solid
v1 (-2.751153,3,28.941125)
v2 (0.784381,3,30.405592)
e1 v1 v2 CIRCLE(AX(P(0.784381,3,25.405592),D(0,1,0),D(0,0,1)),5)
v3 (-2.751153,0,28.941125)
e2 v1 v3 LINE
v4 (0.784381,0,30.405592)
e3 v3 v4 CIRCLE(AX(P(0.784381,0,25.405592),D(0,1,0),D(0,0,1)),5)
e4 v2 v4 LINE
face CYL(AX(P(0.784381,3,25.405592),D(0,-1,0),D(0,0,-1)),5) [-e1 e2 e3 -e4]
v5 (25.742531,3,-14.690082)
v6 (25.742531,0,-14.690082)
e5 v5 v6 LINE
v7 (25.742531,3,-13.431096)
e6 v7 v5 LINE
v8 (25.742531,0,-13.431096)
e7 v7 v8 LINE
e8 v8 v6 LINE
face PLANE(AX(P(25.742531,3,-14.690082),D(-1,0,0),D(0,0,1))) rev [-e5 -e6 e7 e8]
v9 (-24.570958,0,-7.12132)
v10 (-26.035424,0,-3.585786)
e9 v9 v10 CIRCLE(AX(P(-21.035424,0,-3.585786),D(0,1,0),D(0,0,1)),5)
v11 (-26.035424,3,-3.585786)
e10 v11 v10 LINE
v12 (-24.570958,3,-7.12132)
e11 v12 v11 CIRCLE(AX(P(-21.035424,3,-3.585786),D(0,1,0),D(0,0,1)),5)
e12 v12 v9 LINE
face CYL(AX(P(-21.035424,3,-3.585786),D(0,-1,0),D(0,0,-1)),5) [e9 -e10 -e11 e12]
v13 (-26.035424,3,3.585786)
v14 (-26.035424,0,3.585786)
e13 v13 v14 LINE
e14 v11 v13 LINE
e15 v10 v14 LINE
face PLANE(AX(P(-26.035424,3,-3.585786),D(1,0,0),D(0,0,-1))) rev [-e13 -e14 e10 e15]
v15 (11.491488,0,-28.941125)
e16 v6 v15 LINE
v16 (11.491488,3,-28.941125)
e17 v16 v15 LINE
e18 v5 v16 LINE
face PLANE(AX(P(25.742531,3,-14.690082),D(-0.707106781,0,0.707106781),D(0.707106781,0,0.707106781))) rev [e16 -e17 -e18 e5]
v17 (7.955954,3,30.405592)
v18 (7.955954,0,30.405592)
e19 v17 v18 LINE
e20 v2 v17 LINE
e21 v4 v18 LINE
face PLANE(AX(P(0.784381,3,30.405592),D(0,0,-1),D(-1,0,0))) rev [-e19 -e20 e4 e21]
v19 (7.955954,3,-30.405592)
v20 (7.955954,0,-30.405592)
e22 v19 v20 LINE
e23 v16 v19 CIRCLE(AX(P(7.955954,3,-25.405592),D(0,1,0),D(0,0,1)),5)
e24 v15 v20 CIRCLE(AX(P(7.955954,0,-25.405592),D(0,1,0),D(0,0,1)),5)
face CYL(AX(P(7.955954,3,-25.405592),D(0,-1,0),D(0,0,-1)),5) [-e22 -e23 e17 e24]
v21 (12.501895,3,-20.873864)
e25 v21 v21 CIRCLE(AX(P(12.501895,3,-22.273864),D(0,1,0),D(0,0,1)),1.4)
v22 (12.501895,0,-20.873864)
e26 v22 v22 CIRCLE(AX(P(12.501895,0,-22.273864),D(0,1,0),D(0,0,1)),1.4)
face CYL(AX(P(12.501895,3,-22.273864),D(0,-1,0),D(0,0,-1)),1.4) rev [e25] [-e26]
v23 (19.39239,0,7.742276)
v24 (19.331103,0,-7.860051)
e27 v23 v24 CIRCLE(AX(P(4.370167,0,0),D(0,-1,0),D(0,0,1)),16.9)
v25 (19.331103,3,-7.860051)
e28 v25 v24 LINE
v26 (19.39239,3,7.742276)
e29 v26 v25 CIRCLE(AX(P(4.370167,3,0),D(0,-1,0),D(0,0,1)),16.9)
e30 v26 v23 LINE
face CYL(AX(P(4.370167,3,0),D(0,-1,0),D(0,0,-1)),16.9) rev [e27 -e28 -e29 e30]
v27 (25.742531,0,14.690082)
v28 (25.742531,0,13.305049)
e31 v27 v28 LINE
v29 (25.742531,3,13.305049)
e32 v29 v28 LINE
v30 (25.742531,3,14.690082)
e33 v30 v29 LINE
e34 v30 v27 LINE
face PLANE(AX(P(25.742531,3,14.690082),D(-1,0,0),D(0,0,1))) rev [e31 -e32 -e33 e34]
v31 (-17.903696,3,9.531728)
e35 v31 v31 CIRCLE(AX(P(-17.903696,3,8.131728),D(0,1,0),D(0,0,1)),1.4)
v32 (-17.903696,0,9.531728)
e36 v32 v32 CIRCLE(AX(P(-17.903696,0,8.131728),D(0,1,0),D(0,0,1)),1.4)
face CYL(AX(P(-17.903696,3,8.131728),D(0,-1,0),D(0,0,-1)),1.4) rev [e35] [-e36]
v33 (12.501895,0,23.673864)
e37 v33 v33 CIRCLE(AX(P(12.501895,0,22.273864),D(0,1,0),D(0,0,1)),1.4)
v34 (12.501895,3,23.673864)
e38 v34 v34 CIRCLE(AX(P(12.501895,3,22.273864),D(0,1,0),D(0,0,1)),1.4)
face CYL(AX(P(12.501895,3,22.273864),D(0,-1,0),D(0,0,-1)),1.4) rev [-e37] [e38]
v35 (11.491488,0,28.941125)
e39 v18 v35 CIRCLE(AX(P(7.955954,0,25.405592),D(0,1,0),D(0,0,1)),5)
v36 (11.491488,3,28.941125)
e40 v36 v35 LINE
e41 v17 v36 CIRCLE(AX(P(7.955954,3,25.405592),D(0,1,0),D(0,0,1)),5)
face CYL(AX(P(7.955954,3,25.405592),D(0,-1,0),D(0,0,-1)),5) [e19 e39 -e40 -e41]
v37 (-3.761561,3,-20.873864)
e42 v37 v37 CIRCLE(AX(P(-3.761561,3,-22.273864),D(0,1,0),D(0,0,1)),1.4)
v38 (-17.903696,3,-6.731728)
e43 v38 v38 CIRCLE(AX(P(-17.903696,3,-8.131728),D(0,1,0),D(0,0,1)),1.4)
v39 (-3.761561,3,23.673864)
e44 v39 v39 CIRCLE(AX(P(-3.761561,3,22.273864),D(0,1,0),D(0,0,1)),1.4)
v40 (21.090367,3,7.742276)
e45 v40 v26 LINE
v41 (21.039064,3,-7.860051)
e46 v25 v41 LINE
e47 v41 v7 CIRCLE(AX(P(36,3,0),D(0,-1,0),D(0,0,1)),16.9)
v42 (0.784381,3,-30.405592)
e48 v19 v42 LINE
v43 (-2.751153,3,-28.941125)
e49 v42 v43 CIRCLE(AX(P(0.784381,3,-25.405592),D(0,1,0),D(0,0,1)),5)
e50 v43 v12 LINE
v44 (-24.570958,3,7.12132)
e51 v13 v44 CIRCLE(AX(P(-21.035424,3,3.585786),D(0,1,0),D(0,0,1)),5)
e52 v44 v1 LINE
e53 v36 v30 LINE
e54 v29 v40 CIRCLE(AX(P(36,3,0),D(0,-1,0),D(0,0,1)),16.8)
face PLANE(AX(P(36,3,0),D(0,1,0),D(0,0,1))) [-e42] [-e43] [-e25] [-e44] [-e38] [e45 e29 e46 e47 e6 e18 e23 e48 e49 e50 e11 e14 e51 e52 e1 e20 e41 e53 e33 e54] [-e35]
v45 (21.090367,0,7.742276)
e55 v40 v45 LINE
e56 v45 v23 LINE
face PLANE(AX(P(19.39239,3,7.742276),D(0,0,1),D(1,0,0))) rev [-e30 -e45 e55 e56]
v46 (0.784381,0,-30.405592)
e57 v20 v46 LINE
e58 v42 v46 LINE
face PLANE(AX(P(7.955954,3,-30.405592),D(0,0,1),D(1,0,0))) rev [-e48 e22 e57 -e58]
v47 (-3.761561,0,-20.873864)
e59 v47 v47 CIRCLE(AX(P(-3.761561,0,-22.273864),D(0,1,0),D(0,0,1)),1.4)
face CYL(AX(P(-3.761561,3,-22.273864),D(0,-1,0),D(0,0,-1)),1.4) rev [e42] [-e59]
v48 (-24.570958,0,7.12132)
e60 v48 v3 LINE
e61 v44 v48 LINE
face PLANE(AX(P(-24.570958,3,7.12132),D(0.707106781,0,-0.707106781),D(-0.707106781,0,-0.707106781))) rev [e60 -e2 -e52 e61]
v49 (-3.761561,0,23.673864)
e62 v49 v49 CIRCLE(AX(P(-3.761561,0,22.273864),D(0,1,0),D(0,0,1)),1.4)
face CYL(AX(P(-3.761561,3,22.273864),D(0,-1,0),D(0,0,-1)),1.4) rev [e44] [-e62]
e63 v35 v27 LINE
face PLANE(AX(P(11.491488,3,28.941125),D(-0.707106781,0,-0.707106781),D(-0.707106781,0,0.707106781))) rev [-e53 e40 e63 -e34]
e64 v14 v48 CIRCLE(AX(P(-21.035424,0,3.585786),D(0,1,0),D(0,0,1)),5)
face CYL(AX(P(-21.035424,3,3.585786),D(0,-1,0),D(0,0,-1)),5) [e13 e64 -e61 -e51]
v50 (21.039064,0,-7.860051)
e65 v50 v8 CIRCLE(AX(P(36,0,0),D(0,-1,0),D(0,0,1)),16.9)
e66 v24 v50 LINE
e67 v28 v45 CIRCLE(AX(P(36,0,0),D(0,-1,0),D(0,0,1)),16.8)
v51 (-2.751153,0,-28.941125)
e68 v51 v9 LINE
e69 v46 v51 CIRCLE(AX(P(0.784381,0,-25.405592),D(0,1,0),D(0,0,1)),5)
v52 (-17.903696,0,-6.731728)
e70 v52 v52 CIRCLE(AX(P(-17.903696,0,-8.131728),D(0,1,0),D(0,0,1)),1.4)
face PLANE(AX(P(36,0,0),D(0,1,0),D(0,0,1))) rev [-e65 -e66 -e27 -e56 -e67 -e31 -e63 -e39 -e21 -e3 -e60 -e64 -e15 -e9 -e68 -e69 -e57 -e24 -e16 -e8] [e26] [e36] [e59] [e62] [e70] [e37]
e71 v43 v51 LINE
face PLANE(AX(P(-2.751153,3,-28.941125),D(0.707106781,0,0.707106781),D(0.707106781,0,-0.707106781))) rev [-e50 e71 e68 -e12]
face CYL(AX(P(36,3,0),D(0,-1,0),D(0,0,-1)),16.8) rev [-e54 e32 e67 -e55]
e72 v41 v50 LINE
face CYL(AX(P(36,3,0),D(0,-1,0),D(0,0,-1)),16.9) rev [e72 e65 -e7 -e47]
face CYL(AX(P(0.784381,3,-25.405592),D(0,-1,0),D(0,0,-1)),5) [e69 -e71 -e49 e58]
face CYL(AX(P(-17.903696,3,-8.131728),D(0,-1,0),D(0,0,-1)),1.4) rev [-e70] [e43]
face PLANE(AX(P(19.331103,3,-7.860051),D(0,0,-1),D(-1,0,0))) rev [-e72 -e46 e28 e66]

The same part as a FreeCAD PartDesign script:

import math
import FreeCAD as App
import Part
import Sketcher
Q = App.Units.Quantity

doc = App.newDocument("Part")
params = doc.addObject("Spreadsheet::Sheet", "Params")
for row, (alias, value) in enumerate([
    ("sketch1_radius", "5 mm"),
    ("sketch1_diameter", "2.8 mm"),
    ("sketch1_radius2", "16.8 mm"),
    ("sketch1_radius3", "16.9 mm"),
    ("pad1_length", "3 mm"),
], start=1):
    params.set(f"A{row}", alias)
    params.set(f"B{row}", "=" + value)
    params.setAlias(f"B{row}", alias)

body = doc.addObject("PartDesign::Body", "Body")

# Sketch on XZ plane
sketch1 = body.newObject("Sketcher::SketchObject", "Sketch")
sketch1.AttachmentSupport = (doc.getObject("XZ_Plane"), [""])
sketch1.MapMode = "FlatFace"
sketch1.addGeometry(Part.LineSegment(App.Vector(25.742531, -14.690082, 0), App.Vector(11.491488, -28.941125, 0)), False)
sketch1.addGeometry(Part.ArcOfCircle(Part.Circle(App.Vector(7.955954, -25.405592, 0), App.Vector(0, 0, 1), 5), math.radians(-90), math.radians(-45)), False)
sketch1.addGeometry(Part.LineSegment(App.Vector(7.955954, -30.405592, 0), App.Vector(0.784381, -30.405592, 0)), False)
sketch1.addGeometry(Part.ArcOfCircle(Part.Circle(App.Vector(0.784381, -25.405592, 0), App.Vector(0, 0, 1), 5), math.radians(-135), math.radians(-90)), False)
sketch1.addGeometry(Part.LineSegment(App.Vector(-2.751153, -28.941125, 0), App.Vector(-24.570958, -7.12132, 0)), False)
sketch1.addGeometry(Part.ArcOfCircle(Part.Circle(App.Vector(-21.035424, -3.585786, 0), App.Vector(0, 0, 1), 5), math.radians(180), math.radians(225)), False)
sketch1.addGeometry(Part.LineSegment(App.Vector(-26.035424, -3.585786, 0), App.Vector(-26.035424, 3.585786, 0)), False)
sketch1.addGeometry(Part.ArcOfCircle(Part.Circle(App.Vector(-21.035424, 3.585786, 0), App.Vector(0, 0, 1), 5), math.radians(135), math.radians(180)), False)
sketch1.addGeometry(Part.LineSegment(App.Vector(-24.570958, 7.12132, 0), App.Vector(-2.751153, 28.941125, 0)), False)
sketch1.addGeometry(Part.ArcOfCircle(Part.Circle(App.Vector(0.784381, 25.405592, 0), App.Vector(0, 0, 1), 5), math.radians(90), math.radians(135)), False)
sketch1.addGeometry(Part.LineSegment(App.Vector(0.784381, 30.405592, 0), App.Vector(7.955954, 30.405592, 0)), False)
sketch1.addGeometry(Part.ArcOfCircle(Part.Circle(App.Vector(7.955954, 25.405592, 0), App.Vector(0, 0, 1), 5), math.radians(45), math.radians(90)), False)
sketch1.addGeometry(Part.LineSegment(App.Vector(11.491488, 28.941125, 0), App.Vector(25.742531, 14.690082, 0)), False)
sketch1.addGeometry(Part.LineSegment(App.Vector(25.742531, 14.690082, 0), App.Vector(25.742531, 13.305049, 0)), False)
sketch1.addGeometry(Part.ArcOfCircle(Part.Circle(App.Vector(36, 0, 0), App.Vector(0, 0, 1), 16.8), math.radians(127.630268), math.radians(152.558045)), False)
sketch1.addGeometry(Part.LineSegment(App.Vector(21.090367, 7.742276, 0), App.Vector(19.39239, 7.742276, 0)), False)
sketch1.addGeometry(Part.ArcOfCircle(Part.Circle(App.Vector(4.370167, 0, 0), App.Vector(0, 0, 1), 16.9), math.radians(27.266044), math.radians(332.283839)), False)
sketch1.addGeometry(Part.LineSegment(App.Vector(19.331103, -7.860051, 0), App.Vector(21.039064, -7.860051, 0)), False)
sketch1.addGeometry(Part.ArcOfCircle(Part.Circle(App.Vector(36, 0, 0), App.Vector(0, 0, 1), 16.9), math.radians(-152.283839), math.radians(-127.369353)), False)
sketch1.addGeometry(Part.LineSegment(App.Vector(25.742531, -13.431096, 0), App.Vector(25.742531, -14.690082, 0)), False)
sketch1.addGeometry(Part.Circle(App.Vector(-3.761561, 22.273864, 0), App.Vector(0, 0, 1), 1.4), False)
sketch1.addGeometry(Part.Circle(App.Vector(-17.903696, 8.131728, 0), App.Vector(0, 0, 1), 1.4), False)
sketch1.addGeometry(Part.Circle(App.Vector(12.501895, 22.273864, 0), App.Vector(0, 0, 1), 1.4), False)
sketch1.addGeometry(Part.Circle(App.Vector(-17.903696, -8.131728, 0), App.Vector(0, 0, 1), 1.4), False)
sketch1.addGeometry(Part.Circle(App.Vector(-3.761561, -22.273864, 0), App.Vector(0, 0, 1), 1.4), False)
sketch1.addGeometry(Part.Circle(App.Vector(12.501895, -22.273864, 0), App.Vector(0, 0, 1), 1.4), False)
sketch1.addConstraint(Sketcher.Constraint("Tangent", 0, 2, 1, 2))
sketch1.addConstraint(Sketcher.Constraint("Tangent", 1, 1, 2, 1))
sketch1.addConstraint(Sketcher.Constraint("Tangent", 2, 2, 3, 2))
sketch1.addConstraint(Sketcher.Constraint("Tangent", 3, 1, 4, 1))
sketch1.addConstraint(Sketcher.Constraint("Tangent", 4, 2, 5, 2))
sketch1.addConstraint(Sketcher.Constraint("Tangent", 5, 1, 6, 1))
sketch1.addConstraint(Sketcher.Constraint("Tangent", 6, 2, 7, 2))
sketch1.addConstraint(Sketcher.Constraint("Tangent", 7, 1, 8, 1))
sketch1.addConstraint(Sketcher.Constraint("Tangent", 8, 2, 9, 2))
sketch1.addConstraint(Sketcher.Constraint("Tangent", 9, 1, 10, 1))
sketch1.addConstraint(Sketcher.Constraint("Tangent", 10, 2, 11, 2))
sketch1.addConstraint(Sketcher.Constraint("Tangent", 11, 1, 12, 1))
sketch1.addConstraint(Sketcher.Constraint("Coincident", 12, 2, 13, 1))
sketch1.addConstraint(Sketcher.Constraint("Coincident", 13, 2, 14, 1))
sketch1.addConstraint(Sketcher.Constraint("Coincident", 14, 2, 15, 1))
sketch1.addConstraint(Sketcher.Constraint("Coincident", 15, 2, 16, 1))
sketch1.addConstraint(Sketcher.Constraint("Coincident", 16, 2, 17, 1))
sketch1.addConstraint(Sketcher.Constraint("Coincident", 17, 2, 18, 1))
sketch1.addConstraint(Sketcher.Constraint("Coincident", 18, 2, 19, 1))
sketch1.addConstraint(Sketcher.Constraint("Coincident", 19, 2, 0, 1))
sketch1.addConstraint(Sketcher.Constraint("Horizontal", 2))
sketch1.addConstraint(Sketcher.Constraint("Vertical", 6))
sketch1.addConstraint(Sketcher.Constraint("Horizontal", 10))
sketch1.addConstraint(Sketcher.Constraint("Vertical", 13))
sketch1.addConstraint(Sketcher.Constraint("Horizontal", 15))
sketch1.addConstraint(Sketcher.Constraint("Horizontal", 17))
sketch1.addConstraint(Sketcher.Constraint("Vertical", 19))
sketch1.addConstraint(Sketcher.Constraint("Coincident", 18, 3, 14, 3))
sketch1.addConstraint(Sketcher.Constraint("Equal", 1, 3))
sketch1.addConstraint(Sketcher.Constraint("Equal", 3, 5))
sketch1.addConstraint(Sketcher.Constraint("Equal", 5, 7))
sketch1.addConstraint(Sketcher.Constraint("Equal", 7, 9))
sketch1.addConstraint(Sketcher.Constraint("Equal", 9, 11))
sketch1.addConstraint(Sketcher.Constraint("Equal", 16, 18))
sketch1.addConstraint(Sketcher.Constraint("Equal", 20, 21))
sketch1.addConstraint(Sketcher.Constraint("Equal", 21, 22))
sketch1.addConstraint(Sketcher.Constraint("Equal", 22, 23))
sketch1.addConstraint(Sketcher.Constraint("Equal", 23, 24))
sketch1.addConstraint(Sketcher.Constraint("Equal", 24, 25))
sketch1.addConstraint(Sketcher.Constraint("Symmetric", 3, 3, 9, 3, -1))
sketch1.addConstraint(Sketcher.Constraint("Symmetric", 21, 3, 23, 3, -1))
sketch1.addConstraint(Sketcher.Constraint("Symmetric", 20, 3, 24, 3, -1))
sketch1.addConstraint(Sketcher.Constraint("Symmetric", 22, 3, 25, 3, -1))
sketch1.addConstraint(Sketcher.Constraint("Symmetric", 0, 2, 11, 1, -1))
sketch1.addConstraint(Sketcher.Constraint("PointOnObject", 14, 3, -1))
sketch1.addConstraint(Sketcher.Constraint("PointOnObject", 16, 3, -1))
sketch1.addConstraint(Sketcher.Constraint("Perpendicular", 0, 4))
sketch1.addConstraint(Sketcher.Constraint("Perpendicular", 4, 8))
sketch1.addConstraint(Sketcher.Constraint("Perpendicular", 8, 12))
sketch1.addConstraint(Sketcher.Constraint("Horizontal", 20, 3, 22, 3))
sketch1.addConstraint(Sketcher.Constraint("Vertical", 13, 2, 18, 2))
sketch1.addConstraint(Sketcher.Constraint("Equal", 10, 6))
sketch1.addConstraint(Sketcher.Constraint("Radius", 1, Q("5 mm")))
sketch1.addConstraint(Sketcher.Constraint("Diameter", 20, Q("2.8 mm")))
sketch1.addConstraint(Sketcher.Constraint("Radius", 14, Q("16.8 mm")))
sketch1.addConstraint(Sketcher.Constraint("Radius", 16, Q("16.9 mm")))
sketch1.addConstraint(Sketcher.Constraint("DistanceX", -1, 1, 14, 3, Q("36 mm")))
sketch1.addConstraint(Sketcher.Constraint("DistanceX", 17, 1, 17, 2, Q("1.707961 mm")))
sketch1.addConstraint(Sketcher.Constraint("Distance", 0, Q("20.154019 mm")))
sketch1.addConstraint(Sketcher.Constraint("DistanceX", 2, 2, 2, 1, Q("7.171573 mm")))
sketch1.addConstraint(Sketcher.Constraint("DistanceX", 15, 2, 15, 1, Q("1.697977 mm")))
sketch1.addConstraint(Sketcher.Constraint("DistanceY", 13, 2, 13, 1, Q("1.385033 mm")))
sketch1.addConstraint(Sketcher.Constraint("DistanceY", 1, 3, -1, 1, Q("25.405592 mm")))
sketch1.addConstraint(Sketcher.Constraint("DistanceX", 20, 3, -1, 1, Q("3.761561 mm")))
sketch1.addConstraint(Sketcher.Constraint("DistanceX", -1, 1, 15, 2, Q("19.39239 mm")))
sketch1.addConstraint(Sketcher.Constraint("DistanceY", 5, 3, 20, 3, Q("25.85965 mm")))
sketch1.addConstraint(Sketcher.Constraint("DistanceY", 7, 3, 21, 3, Q("4.545942 mm")))
sketch1.addConstraint(Sketcher.Constraint("DistanceX", 11, 3, 22, 3, Q("4.545942 mm")))
sketch1.addConstraint(Sketcher.Constraint("DistanceX", 4, 2, 23, 3, Q("6.667262 mm")))
sketch1.setExpression("Constraints[52]", "Params.sketch1_radius")
sketch1.setExpression("Constraints[53]", "Params.sketch1_diameter")
sketch1.setExpression("Constraints[54]", "Params.sketch1_radius2")
sketch1.setExpression("Constraints[55]", "Params.sketch1_radius3")
pad1 = body.newObject("PartDesign::Pad", "Pad")
pad1.Profile = sketch1
pad1.setExpression("Length", "Params.pad1_length")
pad1.Reversed = True

doc.recompute()
